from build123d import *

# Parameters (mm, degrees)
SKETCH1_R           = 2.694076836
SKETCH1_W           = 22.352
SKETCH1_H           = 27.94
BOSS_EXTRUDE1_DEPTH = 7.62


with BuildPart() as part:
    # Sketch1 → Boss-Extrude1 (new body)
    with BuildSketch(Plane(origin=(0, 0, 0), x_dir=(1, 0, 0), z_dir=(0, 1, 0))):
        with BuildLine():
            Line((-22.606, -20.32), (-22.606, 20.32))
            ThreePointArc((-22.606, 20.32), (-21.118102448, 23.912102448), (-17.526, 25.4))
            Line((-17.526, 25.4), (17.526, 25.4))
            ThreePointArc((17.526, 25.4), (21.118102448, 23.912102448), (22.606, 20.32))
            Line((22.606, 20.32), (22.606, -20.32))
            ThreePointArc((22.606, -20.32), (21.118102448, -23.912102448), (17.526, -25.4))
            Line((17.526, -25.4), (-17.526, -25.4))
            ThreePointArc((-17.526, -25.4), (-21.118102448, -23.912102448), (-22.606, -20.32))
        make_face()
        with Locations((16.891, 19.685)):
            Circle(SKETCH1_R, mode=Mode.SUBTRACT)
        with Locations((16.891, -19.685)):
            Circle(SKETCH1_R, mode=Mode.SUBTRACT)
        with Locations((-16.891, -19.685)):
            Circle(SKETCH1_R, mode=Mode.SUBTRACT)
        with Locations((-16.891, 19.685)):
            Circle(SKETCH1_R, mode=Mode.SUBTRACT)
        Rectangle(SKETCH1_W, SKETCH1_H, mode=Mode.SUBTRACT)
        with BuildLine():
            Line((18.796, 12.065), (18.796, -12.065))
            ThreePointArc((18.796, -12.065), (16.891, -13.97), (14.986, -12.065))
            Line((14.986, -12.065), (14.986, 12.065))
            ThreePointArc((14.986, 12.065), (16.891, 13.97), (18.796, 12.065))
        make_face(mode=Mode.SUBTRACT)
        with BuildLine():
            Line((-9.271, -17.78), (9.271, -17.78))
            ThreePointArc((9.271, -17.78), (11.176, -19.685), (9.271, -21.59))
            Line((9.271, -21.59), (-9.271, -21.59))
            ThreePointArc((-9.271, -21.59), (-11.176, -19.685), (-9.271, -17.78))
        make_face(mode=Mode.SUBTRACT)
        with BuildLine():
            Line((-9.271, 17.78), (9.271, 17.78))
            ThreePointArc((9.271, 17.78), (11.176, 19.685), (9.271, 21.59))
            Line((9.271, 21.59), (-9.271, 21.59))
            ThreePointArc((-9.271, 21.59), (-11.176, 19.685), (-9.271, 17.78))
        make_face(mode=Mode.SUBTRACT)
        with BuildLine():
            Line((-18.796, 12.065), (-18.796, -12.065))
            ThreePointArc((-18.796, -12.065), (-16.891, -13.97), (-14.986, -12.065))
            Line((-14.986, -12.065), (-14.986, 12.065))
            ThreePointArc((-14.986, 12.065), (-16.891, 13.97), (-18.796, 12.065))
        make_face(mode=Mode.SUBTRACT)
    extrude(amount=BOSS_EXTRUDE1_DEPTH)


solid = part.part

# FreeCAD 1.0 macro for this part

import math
import FreeCAD as App
import Part
import Sketcher

V = App.Vector
Q = App.Units.Quantity


def add_polygon(sketch, points):
    """Adds a closed chain of lines whose ends are joined by coincident constraints."""
    first, n = sketch.GeometryCount, len(points)
    for a, b in zip(points, points[1:] + points[:1]):
        sketch.addGeometry(Part.LineSegment(App.Vector(*a, 0), App.Vector(*b, 0)), False)
    for i in range(n):
        sketch.addConstraint(Sketcher.Constraint("Coincident", first + i, 2, first + (i + 1) % n, 1))

doc = App.newDocument("Part")
params = doc.addObject("Spreadsheet::Sheet", "Params")
for row, (alias, value) in enumerate([
    ("sketch1_radius", "0.2 in"),
    ("sketch1_height", "1.6 in"),
    ("sketch1_height2", "1.1 in"),
    ("sketch1_radius2", "0.075 in"),
    ("sketch1_width", "1.38 in"),
    ("pad1_length", "0.3 in"),
], start=1):
    params.set(f"A{row}", alias)
    params.set(f"B{row}", "=" + value)
    params.setAlias(f"B{row}", alias)

body = doc.addObject("PartDesign::Body", "Body")

sketch1 = body.newObject("Sketcher::SketchObject", "Sketch")
sketch1.AttachmentSupport = (doc.getObject("XZ_Plane"), [""])
sketch1.MapMode = "FlatFace"
sketch1.addGeometry(Part.LineSegment(V(-22.606, -20.32, 0), V(-22.606, 20.32, 0)), False)
sketch1.addGeometry(Part.ArcOfCircle(Part.Circle(V(-17.526, 20.32, 0), V(0, 0, 1), 5.08), math.radians(90), math.radians(180)), False)
sketch1.addGeometry(Part.LineSegment(V(-17.526, 25.4, 0), V(17.526, 25.4, 0)), False)
sketch1.addGeometry(Part.ArcOfCircle(Part.Circle(V(17.526, 20.32, 0), V(0, 0, 1), 5.08), math.radians(0), math.radians(90)), False)
sketch1.addGeometry(Part.LineSegment(V(22.606, 20.32, 0), V(22.606, -20.32, 0)), False)
sketch1.addGeometry(Part.ArcOfCircle(Part.Circle(V(17.526, -20.32, 0), V(0, 0, 1), 5.08), math.radians(-90), math.radians(0)), False)
sketch1.addGeometry(Part.LineSegment(V(17.526, -25.4, 0), V(-17.526, -25.4, 0)), False)
sketch1.addGeometry(Part.ArcOfCircle(Part.Circle(V(-17.526, -20.32, 0), V(0, 0, 1), 5.08), math.radians(-180), math.radians(-90)), False)
sketch1.addGeometry(Part.Circle(V(16.891, 19.685, 0), V(0, 0, 1), 2.694077), False)
sketch1.addGeometry(Part.LineSegment(V(-9.271, 17.78, 0), V(9.271, 17.78, 0)), False)
sketch1.addGeometry(Part.ArcOfCircle(Part.Circle(V(9.271, 19.685, 0), V(0, 0, 1), 1.905), math.radians(-90), math.radians(90)), False)
sketch1.addGeometry(Part.LineSegment(V(9.271, 21.59, 0), V(-9.271, 21.59, 0)), False)
sketch1.addGeometry(Part.ArcOfCircle(Part.Circle(V(-9.271, 19.685, 0), V(0, 0, 1), 1.905), math.radians(90), math.radians(270)), False)
sketch1.addGeometry(Part.Circle(V(-16.891, 19.685, 0), V(0, 0, 1), 2.694077), False)
sketch1.addGeometry(Part.LineSegment(V(18.796, -12.065, 0), V(18.796, 12.065, 0)), False)
sketch1.addGeometry(Part.ArcOfCircle(Part.Circle(V(16.891, 12.065, 0), V(0, 0, 1), 1.905), math.radians(0), math.radians(180)), False)
sketch1.addGeometry(Part.LineSegment(V(14.986, 12.065, 0), V(14.986, -12.065, 0)), False)
sketch1.addGeometry(Part.ArcOfCircle(Part.Circle(V(16.891, -12.065, 0), V(0, 0, 1), 1.905), math.radians(180), math.radians(360)), False)
sketch1.addGeometry(Part.Circle(V(16.891, -19.685, 0), V(0, 0, 1), 2.694077), False)
add_polygon(sketch1, [(-11.176, 13.97), (-11.176, -13.97), (11.176, -13.97), (11.176, 13.97)])
sketch1.addGeometry(Part.ArcOfCircle(Part.Circle(V(-16.891, -12.065, 0), V(0, 0, 1), 1.905), math.radians(180), math.radians(360)), False)
sketch1.addGeometry(Part.LineSegment(V(-14.986, -12.065, 0), V(-14.986, 12.065, 0)), False)
sketch1.addGeometry(Part.ArcOfCircle(Part.Circle(V(-16.891, 12.065, 0), V(0, 0, 1), 1.905), math.radians(0), math.radians(180)), False)
sketch1.addGeometry(Part.LineSegment(V(-18.796, 12.065, 0), V(-18.796, -12.065, 0)), False)
sketch1.addGeometry(Part.ArcOfCircle(Part.Circle(V(-9.271, -19.685, 0), V(0, 0, 1), 1.905), math.radians(90), math.radians(270)), False)
sketch1.addGeometry(Part.LineSegment(V(-9.271, -21.59, 0), V(9.271, -21.59, 0)), False)
sketch1.addGeometry(Part.ArcOfCircle(Part.Circle(V(9.271, -19.685, 0), V(0, 0, 1), 1.905), math.radians(-90), math.radians(90)), False)
sketch1.addGeometry(Part.LineSegment(V(9.271, -17.78, 0), V(-9.271, -17.78, 0)), False)
sketch1.addGeometry(Part.Circle(V(-16.891, -19.685, 0), V(0, 0, 1), 2.694077), False)
sketch1.addConstraint(Sketcher.Constraint("Tangent", 0, 2, 1, 2))
sketch1.addConstraint(Sketcher.Constraint("Tangent", 1, 1, 2, 1))
sketch1.addConstraint(Sketcher.Constraint("Tangent", 2, 2, 3, 2))
sketch1.addConstraint(Sketcher.Constraint("Tangent", 3, 1, 4, 1))
sketch1.addConstraint(Sketcher.Constraint("Tangent", 4, 2, 5, 2))
sketch1.addConstraint(Sketcher.Constraint("Tangent", 5, 1, 6, 1))
sketch1.addConstraint(Sketcher.Constraint("Tangent", 6, 2, 7, 2))
sketch1.addConstraint(Sketcher.Constraint("Tangent", 7, 1, 0, 1))
sketch1.addConstraint(Sketcher.Constraint("Tangent", 9, 2, 10, 1))
sketch1.addConstraint(Sketcher.Constraint("Tangent", 10, 2, 11, 1))
sketch1.addConstraint(Sketcher.Constraint("Tangent", 11, 2, 12, 1))
sketch1.addConstraint(Sketcher.Constraint("Tangent", 12, 2, 9, 1))
sketch1.addConstraint(Sketcher.Constraint("Tangent", 14, 2, 15, 1))
sketch1.addConstraint(Sketcher.Constraint("Tangent", 15, 2, 16, 1))
sketch1.addConstraint(Sketcher.Constraint("Tangent", 16, 2, 17, 1))
sketch1.addConstraint(Sketcher.Constraint("Tangent", 17, 2, 14, 1))
sketch1.addConstraint(Sketcher.Constraint("Tangent", 23, 2, 24, 1))
sketch1.addConstraint(Sketcher.Constraint("Tangent", 24, 2, 25, 1))
sketch1.addConstraint(Sketcher.Constraint("Tangent", 25, 2, 26, 1))
sketch1.addConstraint(Sketcher.Constraint("Tangent", 26, 2, 23, 1))
sketch1.addConstraint(Sketcher.Constraint("Tangent", 27, 2, 28, 1))
sketch1.addConstraint(Sketcher.Constraint("Tangent", 28, 2, 29, 1))
sketch1.addConstraint(Sketcher.Constraint("Tangent", 29, 2, 30, 1))
sketch1.addConstraint(Sketcher.Constraint("Tangent", 30, 2, 27, 1))
sketch1.addConstraint(Sketcher.Constraint("Vertical", 0))
sketch1.addConstraint(Sketcher.Constraint("Horizontal", 2))
sketch1.addConstraint(Sketcher.Constraint("Vertical", 4))
sketch1.addConstraint(Sketcher.Constraint("Horizontal", 6))
sketch1.addConstraint(Sketcher.Constraint("Horizontal", 9))
sketch1.addConstraint(Sketcher.Constraint("Horizontal", 11))
sketch1.addConstraint(Sketcher.Constraint("Vertical", 14))
sketch1.addConstraint(Sketcher.Constraint("Vertical", 16))
sketch1.addConstraint(Sketcher.Constraint("Vertical", 19))
sketch1.addConstraint(Sketcher.Constraint("Horizontal", 20))
sketch1.addConstraint(Sketcher.Constraint("Vertical", 21))
sketch1.addConstraint(Sketcher.Constraint("Horizontal", 22))
sketch1.addConstraint(Sketcher.Constraint("Vertical", 24))
sketch1.addConstraint(Sketcher.Constraint("Vertical", 26))
sketch1.addConstraint(Sketcher.Constraint("Horizontal", 28))
sketch1.addConstraint(Sketcher.Constraint("Horizontal", 30))
sketch1.addConstraint(Sketcher.Constraint("Equal", 1, 3))
sketch1.addConstraint(Sketcher.Constraint("Equal", 3, 5))
sketch1.addConstraint(Sketcher.Constraint("Equal", 5, 7))
sketch1.addConstraint(Sketcher.Constraint("Equal", 8, 13))
sketch1.addConstraint(Sketcher.Constraint("Equal", 12, 15))
sketch1.addConstraint(Sketcher.Constraint("Equal", 13, 18))
sketch1.addConstraint(Sketcher.Constraint("Equal", 17, 23))
sketch1.addConstraint(Sketcher.Constraint("Equal", 25, 27))
sketch1.addConstraint(Sketcher.Constraint("Equal", 18, 31))
sketch1.addConstraint(Sketcher.Constraint("Symmetric", 1, 3, 5, 3, -1, 1))
sketch1.addConstraint(Sketcher.Constraint("Symmetric", 13, 3, 18, 3, -1, 1))
sketch1.addConstraint(Sketcher.Constraint("Symmetric", 15, 3, 23, 3, -1, 1))
sketch1.addConstraint(Sketcher.Constraint("Symmetric", 10, 3, 27, 3, -1, 1))
sketch1.addConstraint(Sketcher.Constraint("Symmetric", 8, 3, 31, 3, -1, 1))
sketch1.addConstraint(Sketcher.Constraint("Symmetric", 19, 2, 21, 2, -1, 1))
sketch1.addConstraint(Sketcher.Constraint("Symmetric", 8, 3, 13, 3, -2))
sketch1.addConstraint(Sketcher.Constraint("Horizontal", 8, 3, 10, 3))
sketch1.addConstraint(Sketcher.Constraint("Horizontal", 17, 3, 23, 3))
sketch1.addConstraint(Sketcher.Constraint("Horizontal", 15, 3, 25, 3))
sketch1.addConstraint(Sketcher.Constraint("Vertical", 8, 3, 15, 3))
sketch1.addConstraint(Sketcher.Constraint("Vertical", 12, 3, 27, 3))
sketch1.addConstraint(Sketcher.Constraint("Vertical", 10, 3, 29, 3))
sketch1.addConstraint(Sketcher.Constraint("Radius", 1, Q("0.2 in")))
sketch1.addConstraint(Sketcher.Constraint("DistanceY", 0, 1, 0, 2, Q("1.6 in")))
sketch1.addConstraint(Sketcher.Constraint("DistanceY", 19, 2, 19, 1, Q("1.1 in")))
sketch1.addConstraint(Sketcher.Constraint("Radius", 10, Q("0.075 in")))
sketch1.addConstraint(Sketcher.Constraint("DistanceX", 2, 1, 2, 2, Q("1.38 in")))
sketch1.addConstraint(Sketcher.Constraint("DistanceX", 9, 1, 9, 2, Q("0.73 in")))
sketch1.addConstraint(Sketcher.Constraint("DistanceX", 20, 1, 20, 2, Q("0.88 in")))
sketch1.addConstraint(Sketcher.Constraint("DistanceY", 14, 1, 14, 2, Q("0.95 in")))
sketch1.addConstraint(Sketcher.Constraint("DistanceY", -1, 1, 9, 2, Q("0.7 in")))
sketch1.addConstraint(Sketcher.Constraint("DistanceX", 10, 3, 8, 3, Q("0.3 in")))
sketch1.addConstraint(Sketcher.Constraint("Diameter", 8, Q("5.388154 mm")))
sketch1.setExpression("Constraints[66]", "Params.sketch1_radius")
sketch1.setExpression("Constraints[67]", "Params.sketch1_height")
sketch1.setExpression("Constraints[68]", "Params.sketch1_height2")
sketch1.setExpression("Constraints[69]", "Params.sketch1_radius2")
sketch1.setExpression("Constraints[70]", "Params.sketch1_width")
pad1 = body.newObject("PartDesign::Pad", "Pad")
pad1.Profile = sketch1
pad1.setExpression("Length", "Params.pad1_length")
pad1.Reversed = True

doc.recompute()
